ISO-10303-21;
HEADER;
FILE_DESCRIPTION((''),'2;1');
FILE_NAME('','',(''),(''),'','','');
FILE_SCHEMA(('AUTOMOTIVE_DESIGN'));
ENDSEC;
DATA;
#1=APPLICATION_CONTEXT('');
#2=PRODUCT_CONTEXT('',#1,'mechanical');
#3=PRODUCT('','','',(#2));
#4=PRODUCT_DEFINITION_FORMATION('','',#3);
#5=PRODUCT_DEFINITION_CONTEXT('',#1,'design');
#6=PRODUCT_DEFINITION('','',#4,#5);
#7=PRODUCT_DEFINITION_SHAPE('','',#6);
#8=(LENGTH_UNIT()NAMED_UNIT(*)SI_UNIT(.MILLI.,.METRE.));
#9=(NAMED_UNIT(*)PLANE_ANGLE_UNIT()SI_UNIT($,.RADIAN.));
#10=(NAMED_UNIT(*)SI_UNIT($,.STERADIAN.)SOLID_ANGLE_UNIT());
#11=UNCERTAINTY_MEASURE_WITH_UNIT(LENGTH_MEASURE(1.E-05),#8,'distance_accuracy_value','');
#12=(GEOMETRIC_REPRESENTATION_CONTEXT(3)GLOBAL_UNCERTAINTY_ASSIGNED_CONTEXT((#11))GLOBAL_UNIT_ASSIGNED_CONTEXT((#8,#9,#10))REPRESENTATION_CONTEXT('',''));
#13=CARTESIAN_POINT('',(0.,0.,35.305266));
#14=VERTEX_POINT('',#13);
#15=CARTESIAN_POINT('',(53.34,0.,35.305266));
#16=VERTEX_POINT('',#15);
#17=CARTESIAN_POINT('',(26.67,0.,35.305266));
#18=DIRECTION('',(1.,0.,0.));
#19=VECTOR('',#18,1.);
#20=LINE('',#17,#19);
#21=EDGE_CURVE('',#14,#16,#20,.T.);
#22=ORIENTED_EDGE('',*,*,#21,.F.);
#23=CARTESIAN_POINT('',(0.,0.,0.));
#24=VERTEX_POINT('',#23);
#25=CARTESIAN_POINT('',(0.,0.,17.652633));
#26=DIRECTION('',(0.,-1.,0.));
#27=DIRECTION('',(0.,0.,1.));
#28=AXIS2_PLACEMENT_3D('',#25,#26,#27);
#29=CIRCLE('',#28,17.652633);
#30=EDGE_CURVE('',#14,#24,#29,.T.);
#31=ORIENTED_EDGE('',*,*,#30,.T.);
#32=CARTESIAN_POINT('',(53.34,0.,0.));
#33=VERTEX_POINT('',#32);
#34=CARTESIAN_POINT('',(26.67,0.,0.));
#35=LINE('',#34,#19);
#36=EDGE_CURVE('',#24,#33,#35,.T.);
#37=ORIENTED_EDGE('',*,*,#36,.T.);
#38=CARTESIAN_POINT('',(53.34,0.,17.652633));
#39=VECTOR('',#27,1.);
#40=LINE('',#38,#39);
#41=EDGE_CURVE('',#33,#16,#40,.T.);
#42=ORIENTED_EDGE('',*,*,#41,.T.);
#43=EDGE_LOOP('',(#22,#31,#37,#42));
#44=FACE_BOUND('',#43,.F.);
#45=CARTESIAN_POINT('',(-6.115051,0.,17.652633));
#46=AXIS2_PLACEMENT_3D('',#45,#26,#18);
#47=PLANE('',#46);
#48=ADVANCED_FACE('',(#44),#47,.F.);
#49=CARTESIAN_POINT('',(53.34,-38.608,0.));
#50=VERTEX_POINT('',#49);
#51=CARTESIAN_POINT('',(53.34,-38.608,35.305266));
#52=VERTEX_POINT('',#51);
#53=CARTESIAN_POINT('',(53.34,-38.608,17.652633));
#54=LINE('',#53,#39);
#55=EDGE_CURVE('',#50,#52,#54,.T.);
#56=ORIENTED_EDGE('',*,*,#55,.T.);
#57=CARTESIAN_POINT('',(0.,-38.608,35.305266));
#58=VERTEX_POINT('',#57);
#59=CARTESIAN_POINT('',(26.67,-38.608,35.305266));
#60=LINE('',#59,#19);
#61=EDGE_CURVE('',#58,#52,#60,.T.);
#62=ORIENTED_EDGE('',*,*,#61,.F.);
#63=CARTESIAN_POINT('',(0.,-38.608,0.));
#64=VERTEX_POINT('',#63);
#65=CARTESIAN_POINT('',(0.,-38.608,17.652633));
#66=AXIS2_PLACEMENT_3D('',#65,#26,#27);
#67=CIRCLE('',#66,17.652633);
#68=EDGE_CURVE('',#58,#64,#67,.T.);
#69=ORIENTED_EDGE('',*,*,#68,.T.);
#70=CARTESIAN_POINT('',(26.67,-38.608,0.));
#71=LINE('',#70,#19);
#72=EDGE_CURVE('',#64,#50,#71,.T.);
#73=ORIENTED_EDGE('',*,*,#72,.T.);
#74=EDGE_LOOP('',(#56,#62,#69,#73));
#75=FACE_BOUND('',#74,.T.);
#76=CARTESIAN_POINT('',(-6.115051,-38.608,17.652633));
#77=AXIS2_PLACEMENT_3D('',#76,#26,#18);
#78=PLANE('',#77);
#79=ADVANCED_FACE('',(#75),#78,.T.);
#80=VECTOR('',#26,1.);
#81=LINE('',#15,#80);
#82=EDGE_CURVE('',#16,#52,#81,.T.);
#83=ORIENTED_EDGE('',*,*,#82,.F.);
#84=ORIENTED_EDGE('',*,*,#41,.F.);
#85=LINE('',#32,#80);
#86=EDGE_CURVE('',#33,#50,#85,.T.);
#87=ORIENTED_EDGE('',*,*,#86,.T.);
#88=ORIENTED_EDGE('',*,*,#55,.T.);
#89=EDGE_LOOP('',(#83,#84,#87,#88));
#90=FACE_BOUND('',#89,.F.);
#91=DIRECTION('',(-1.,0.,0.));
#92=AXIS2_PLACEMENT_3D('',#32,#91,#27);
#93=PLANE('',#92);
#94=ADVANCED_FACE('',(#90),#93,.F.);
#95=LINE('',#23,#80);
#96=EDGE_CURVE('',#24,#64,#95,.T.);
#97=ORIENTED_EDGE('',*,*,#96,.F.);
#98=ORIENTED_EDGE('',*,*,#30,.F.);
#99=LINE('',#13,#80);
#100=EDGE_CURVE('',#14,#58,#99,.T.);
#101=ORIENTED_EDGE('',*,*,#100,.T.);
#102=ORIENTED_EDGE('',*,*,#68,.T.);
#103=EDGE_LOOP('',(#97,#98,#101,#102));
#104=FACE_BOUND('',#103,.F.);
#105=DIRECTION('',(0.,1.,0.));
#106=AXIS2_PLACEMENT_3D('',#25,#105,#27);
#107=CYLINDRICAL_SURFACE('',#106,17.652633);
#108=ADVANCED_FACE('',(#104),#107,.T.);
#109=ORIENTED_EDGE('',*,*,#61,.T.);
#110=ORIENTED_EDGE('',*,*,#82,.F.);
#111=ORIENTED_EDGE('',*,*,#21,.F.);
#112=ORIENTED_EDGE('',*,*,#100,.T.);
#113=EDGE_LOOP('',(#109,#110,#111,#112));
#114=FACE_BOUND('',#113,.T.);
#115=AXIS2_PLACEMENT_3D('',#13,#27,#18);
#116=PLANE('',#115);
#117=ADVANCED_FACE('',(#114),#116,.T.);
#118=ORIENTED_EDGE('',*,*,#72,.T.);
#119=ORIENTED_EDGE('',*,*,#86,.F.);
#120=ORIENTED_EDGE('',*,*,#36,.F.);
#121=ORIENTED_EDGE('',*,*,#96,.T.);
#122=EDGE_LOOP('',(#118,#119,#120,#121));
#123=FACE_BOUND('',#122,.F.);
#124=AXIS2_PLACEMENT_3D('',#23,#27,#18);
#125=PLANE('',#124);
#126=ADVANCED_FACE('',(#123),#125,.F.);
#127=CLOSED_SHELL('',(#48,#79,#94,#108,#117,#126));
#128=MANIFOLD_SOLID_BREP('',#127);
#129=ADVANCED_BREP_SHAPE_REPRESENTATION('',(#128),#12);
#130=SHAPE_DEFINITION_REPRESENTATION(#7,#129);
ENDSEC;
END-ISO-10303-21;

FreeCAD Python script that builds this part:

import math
import FreeCAD as App
import Part
import Sketcher

V = App.Vector
Q = App.Units.Quantity

doc = App.newDocument("Part")
params = doc.addObject("Spreadsheet::Sheet", "Params")
for row, (alias, value) in enumerate([
    ("sketch1_width", "2.1 in"),
    ("pad1_length", "1.52 in"),
], start=1):
    params.set(f"A{row}", alias)
    params.set(f"B{row}", "=" + value)
    params.setAlias(f"B{row}", alias)

body = doc.addObject("PartDesign::Body", "Body")

# Sketch on XZ plane
sketch1 = body.newObject("Sketcher::SketchObject", "Sketch")
sketch1.AttachmentSupport = (doc.getObject("XZ_Plane"), [""])
sketch1.MapMode = "FlatFace"
sketch1.addGeometry([
    Part.ArcOfCircle(Part.Circle(V(0, 17.652633, 0), V(0, 0, 1), 17.652633), math.radians(90), math.radians(270)),
    Part.LineSegment(V(0, 0, 0), V(53.34, 0, 0)),
    Part.LineSegment(V(53.34, 0, 0), V(53.34, 35.305266, 0)),
    Part.LineSegment(V(53.34, 35.305266, 0), V(0, 35.305266, 0)),
], False)
sketch1.addConstraint([
    Sketcher.Constraint("Tangent", 0, 2, 1, 1),
    Sketcher.Constraint("Coincident", 1, 2, 2, 1),
    Sketcher.Constraint("Coincident", 2, 2, 3, 1),
    Sketcher.Constraint("Tangent", 3, 2, 0, 1),
    Sketcher.Constraint("Horizontal", 1),
    Sketcher.Constraint("Vertical", 2),
    Sketcher.Constraint("Horizontal", 3),
    Sketcher.Constraint("Coincident", 0, 2, -1, 1),
    Sketcher.Constraint("DistanceX", 1, 1, 1, 2, Q("2.1 in")),
    Sketcher.Constraint("Radius", 0, 17.652633),
])
sketch1.setExpression("Constraints[8]", "Params.sketch1_width")
pad1 = body.newObject("PartDesign::Pad", "Pad")
pad1.Profile = sketch1
pad1.setExpression("Length", "Params.pad1_length")

doc.recompute()
